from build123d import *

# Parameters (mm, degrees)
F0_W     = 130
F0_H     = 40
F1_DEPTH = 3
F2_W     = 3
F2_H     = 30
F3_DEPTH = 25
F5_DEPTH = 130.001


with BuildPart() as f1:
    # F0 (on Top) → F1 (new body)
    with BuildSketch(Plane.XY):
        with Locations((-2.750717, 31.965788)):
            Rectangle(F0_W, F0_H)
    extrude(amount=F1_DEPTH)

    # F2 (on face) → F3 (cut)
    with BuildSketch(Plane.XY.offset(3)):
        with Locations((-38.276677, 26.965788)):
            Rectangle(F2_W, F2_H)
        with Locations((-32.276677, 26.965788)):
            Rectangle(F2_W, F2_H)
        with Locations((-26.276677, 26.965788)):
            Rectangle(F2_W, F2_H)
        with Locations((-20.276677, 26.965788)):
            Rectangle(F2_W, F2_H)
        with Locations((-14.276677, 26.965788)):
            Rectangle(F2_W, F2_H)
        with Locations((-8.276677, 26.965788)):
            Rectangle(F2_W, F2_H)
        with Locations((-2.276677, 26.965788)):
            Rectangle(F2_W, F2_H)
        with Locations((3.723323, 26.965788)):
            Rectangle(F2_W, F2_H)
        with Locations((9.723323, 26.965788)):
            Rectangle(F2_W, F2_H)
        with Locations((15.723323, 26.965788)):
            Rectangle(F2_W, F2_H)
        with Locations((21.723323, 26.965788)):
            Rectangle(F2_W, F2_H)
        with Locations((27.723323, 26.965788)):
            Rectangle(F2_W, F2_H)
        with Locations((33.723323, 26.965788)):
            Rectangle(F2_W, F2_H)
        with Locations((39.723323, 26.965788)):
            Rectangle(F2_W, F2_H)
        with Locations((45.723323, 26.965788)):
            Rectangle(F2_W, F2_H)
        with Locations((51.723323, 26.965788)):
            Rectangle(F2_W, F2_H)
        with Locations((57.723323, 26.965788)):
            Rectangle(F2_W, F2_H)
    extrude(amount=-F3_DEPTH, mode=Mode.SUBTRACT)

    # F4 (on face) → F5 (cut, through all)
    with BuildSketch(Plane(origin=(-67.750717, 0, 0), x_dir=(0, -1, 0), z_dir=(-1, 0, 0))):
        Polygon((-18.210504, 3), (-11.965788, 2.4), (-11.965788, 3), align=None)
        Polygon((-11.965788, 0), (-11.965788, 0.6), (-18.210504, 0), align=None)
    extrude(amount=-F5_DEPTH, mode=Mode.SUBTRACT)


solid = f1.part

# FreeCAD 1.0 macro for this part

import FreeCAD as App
import Part
import Sketcher

V = App.Vector

doc = App.newDocument("Part")
body = doc.addObject("PartDesign::Body", "Body")

# Sketch on XY plane
sketch1 = body.newObject("Sketcher::SketchObject", "Sketch")
sketch1.AttachmentSupport = (doc.getObject("XY_Plane"), [""])
sketch1.MapMode = "FlatFace"
sketch1.addGeometry([
    Part.LineSegment(V(-68, 52, 0), V(-68, 12, 0)),
    Part.LineSegment(V(-68, 12, 0), V(62, 12, 0)),
    Part.LineSegment(V(62, 12, 0), V(62, 52, 0)),
    Part.LineSegment(V(62, 52, 0), V(-68, 52, 0)),
], False)
sketch1.addConstraint([
    Sketcher.Constraint("Coincident", 0, 2, 1, 1),
    Sketcher.Constraint("Coincident", 1, 2, 2, 1),
    Sketcher.Constraint("Coincident", 2, 2, 3, 1),
    Sketcher.Constraint("Coincident", 3, 2, 0, 1),
    Sketcher.Constraint("Vertical", 0),
    Sketcher.Constraint("Horizontal", 1),
    Sketcher.Constraint("Vertical", 2),
    Sketcher.Constraint("Horizontal", 3),
    Sketcher.Constraint("DistanceX", 1, 1, 1, 2, 130.0),
    Sketcher.Constraint("DistanceY", 0, 2, 0, 1, 40.0),
    Sketcher.Constraint("DistanceY", -1, 1, 2, 2, 51.965788),
    Sketcher.Constraint("DistanceX", 0, 2, -1, 1, 67.750717),
])
pad1 = body.newObject("PartDesign::Pad", "Pad")
pad1.Profile = sketch1
pad1.Length = 3

# Sketch on XY plane
sketch2 = body.newObject("Sketcher::SketchObject", "Sketch001")
sketch2.AttachmentSupport = (doc.getObject("XY_Plane"), [""])
sketch2.MapMode = "FlatFace"
sketch2.AttachmentOffset = App.Placement(V(0, 0, 3), App.Rotation())
sketch2.addGeometry([
    Part.LineSegment(V(-39.8, 42, 0), V(-39.8, 12, 0)),  # 0
    Part.LineSegment(V(-39.8, 12, 0), V(-36.8, 12, 0)),  # 1
    Part.LineSegment(V(-36.8, 12, 0), V(-36.8, 42, 0)),  # 2
    Part.LineSegment(V(-36.8, 42, 0), V(-39.8, 42, 0)),  # 3
    Part.LineSegment(V(-33.8, 42, 0), V(-33.8, 12, 0)),  # 4
    Part.LineSegment(V(-33.8, 12, 0), V(-30.8, 12, 0)),  # 5
    Part.LineSegment(V(-30.8, 12, 0), V(-30.8, 42, 0)),  # 6
    Part.LineSegment(V(-30.8, 42, 0), V(-33.8, 42, 0)),  # 7
    Part.LineSegment(V(-27.8, 42, 0), V(-27.8, 12, 0)),  # 8
    Part.LineSegment(V(-27.8, 12, 0), V(-24.8, 12, 0)),  # 9
    Part.LineSegment(V(-24.8, 12, 0), V(-24.8, 42, 0)),  # 10
    Part.LineSegment(V(-24.8, 42, 0), V(-27.8, 42, 0)),  # 11
    Part.LineSegment(V(-21.8, 42, 0), V(-21.8, 12, 0)),  # 12
    Part.LineSegment(V(-21.8, 12, 0), V(-18.8, 12, 0)),  # 13
    Part.LineSegment(V(-18.8, 12, 0), V(-18.8, 42, 0)),  # 14
    Part.LineSegment(V(-18.8, 42, 0), V(-21.8, 42, 0)),  # 15
    Part.LineSegment(V(-15.8, 42, 0), V(-15.8, 12, 0)),  # 16
    Part.LineSegment(V(-15.8, 12, 0), V(-12.8, 12, 0)),  # 17
    Part.LineSegment(V(-12.8, 12, 0), V(-12.8, 42, 0)),  # 18
    Part.LineSegment(V(-12.8, 42, 0), V(-15.8, 42, 0)),  # 19
    Part.LineSegment(V(-9.8, 42, 0), V(-9.8, 12, 0)),  # 20
    Part.LineSegment(V(-9.8, 12, 0), V(-6.8, 12, 0)),  # 21
    Part.LineSegment(V(-6.8, 12, 0), V(-6.8, 42, 0)),  # 22
    Part.LineSegment(V(-6.8, 42, 0), V(-9.8, 42, 0)),  # 23
    Part.LineSegment(V(-3.8, 42, 0), V(-3.8, 12, 0)),  # 24
    Part.LineSegment(V(-3.8, 12, 0), V(-0.8, 12, 0)),  # 25
    Part.LineSegment(V(-0.8, 12, 0), V(-0.8, 42, 0)),  # 26
    Part.LineSegment(V(-0.8, 42, 0), V(-3.8, 42, 0)),  # 27
    Part.LineSegment(V(2.2, 42, 0), V(2.2, 12, 0)),  # 28
    Part.LineSegment(V(2.2, 12, 0), V(5.2, 12, 0)),  # 29
    Part.LineSegment(V(5.2, 12, 0), V(5.2, 42, 0)),  # 30
    Part.LineSegment(V(5.2, 42, 0), V(2.2, 42, 0)),  # 31
    Part.LineSegment(V(8.2, 42, 0), V(8.2, 12, 0)),  # 32
    Part.LineSegment(V(8.2, 12, 0), V(11.2, 12, 0)),  # 33
    Part.LineSegment(V(11.2, 12, 0), V(11.2, 42, 0)),  # 34
    Part.LineSegment(V(11.2, 42, 0), V(8.2, 42, 0)),  # 35
    Part.LineSegment(V(14.2, 42, 0), V(14.2, 12, 0)),  # 36
    Part.LineSegment(V(14.2, 12, 0), V(17.2, 12, 0)),  # 37
    Part.LineSegment(V(17.2, 12, 0), V(17.2, 42, 0)),  # 38
    Part.LineSegment(V(17.2, 42, 0), V(14.2, 42, 0)),  # 39
    Part.LineSegment(V(20.2, 42, 0), V(20.2, 12, 0)),  # 40
    Part.LineSegment(V(20.2, 12, 0), V(23.2, 12, 0)),  # 41
    Part.LineSegment(V(23.2, 12, 0), V(23.2, 42, 0)),  # 42
    Part.LineSegment(V(23.2, 42, 0), V(20.2, 42, 0)),  # 43
    Part.LineSegment(V(26.2, 42, 0), V(26.2, 12, 0)),  # 44
    Part.LineSegment(V(26.2, 12, 0), V(29.2, 12, 0)),  # 45
    Part.LineSegment(V(29.2, 12, 0), V(29.2, 42, 0)),  # 46
    Part.LineSegment(V(29.2, 42, 0), V(26.2, 42, 0)),  # 47
    Part.LineSegment(V(32.2, 42, 0), V(32.2, 12, 0)),  # 48
    Part.LineSegment(V(32.2, 12, 0), V(35.2, 12, 0)),  # 49
    Part.LineSegment(V(35.2, 12, 0), V(35.2, 42, 0)),  # 50
    Part.LineSegment(V(35.2, 42, 0), V(32.2, 42, 0)),  # 51
    Part.LineSegment(V(38.2, 42, 0), V(38.2, 12, 0)),  # 52
    Part.LineSegment(V(38.2, 12, 0), V(41.2, 12, 0)),  # 53
    Part.LineSegment(V(41.2, 12, 0), V(41.2, 42, 0)),  # 54
    Part.LineSegment(V(41.2, 42, 0), V(38.2, 42, 0)),  # 55
    Part.LineSegment(V(44.2, 42, 0), V(44.2, 12, 0)),  # 56
    Part.LineSegment(V(44.2, 12, 0), V(47.2, 12, 0)),  # 57
    Part.LineSegment(V(47.2, 12, 0), V(47.2, 42, 0)),  # 58
    Part.LineSegment(V(47.2, 42, 0), V(44.2, 42, 0)),  # 59
    Part.LineSegment(V(50.2, 42, 0), V(50.2, 12, 0)),  # 60
    Part.LineSegment(V(50.2, 12, 0), V(53.2, 12, 0)),  # 61
    Part.LineSegment(V(53.2, 12, 0), V(53.2, 42, 0)),  # 62
    Part.LineSegment(V(53.2, 42, 0), V(50.2, 42, 0)),  # 63
    Part.LineSegment(V(56.2, 42, 0), V(56.2, 12, 0)),  # 64
    Part.LineSegment(V(56.2, 12, 0), V(59.2, 12, 0)),  # 65
    Part.LineSegment(V(59.2, 12, 0), V(59.2, 42, 0)),  # 66
    Part.LineSegment(V(59.2, 42, 0), V(56.2, 42, 0)),  # 67
], False)
sketch2.addConstraint([
    Sketcher.Constraint("Coincident", 0, 2, 1, 1),
    Sketcher.Constraint("Coincident", 1, 2, 2, 1),
    Sketcher.Constraint("Coincident", 2, 2, 3, 1),
    Sketcher.Constraint("Coincident", 3, 2, 0, 1),
    Sketcher.Constraint("Coincident", 4, 2, 5, 1),
    Sketcher.Constraint("Coincident", 5, 2, 6, 1),
    Sketcher.Constraint("Coincident", 6, 2, 7, 1),
    Sketcher.Constraint("Coincident", 7, 2, 4, 1),
    Sketcher.Constraint("Coincident", 8, 2, 9, 1),
    Sketcher.Constraint("Coincident", 9, 2, 10, 1),
    Sketcher.Constraint("Coincident", 10, 2, 11, 1),
    Sketcher.Constraint("Coincident", 11, 2, 8, 1),
    Sketcher.Constraint("Coincident", 12, 2, 13, 1),
    Sketcher.Constraint("Coincident", 13, 2, 14, 1),
    Sketcher.Constraint("Coincident", 14, 2, 15, 1),
    Sketcher.Constraint("Coincident", 15, 2, 12, 1),
    Sketcher.Constraint("Coincident", 16, 2, 17, 1),
    Sketcher.Constraint("Coincident", 17, 2, 18, 1),
    Sketcher.Constraint("Coincident", 18, 2, 19, 1),
    Sketcher.Constraint("Coincident", 19, 2, 16, 1),
    Sketcher.Constraint("Coincident", 20, 2, 21, 1),
    Sketcher.Constraint("Coincident", 21, 2, 22, 1),
    Sketcher.Constraint("Coincident", 22, 2, 23, 1),
    Sketcher.Constraint("Coincident", 23, 2, 20, 1),
    Sketcher.Constraint("Coincident", 24, 2, 25, 1),
    Sketcher.Constraint("Coincident", 25, 2, 26, 1),
    Sketcher.Constraint("Coincident", 26, 2, 27, 1),
    Sketcher.Constraint("Coincident", 27, 2, 24, 1),
    Sketcher.Constraint("Coincident", 28, 2, 29, 1),
    Sketcher.Constraint("Coincident", 29, 2, 30, 1),
    Sketcher.Constraint("Coincident", 30, 2, 31, 1),
    Sketcher.Constraint("Coincident", 31, 2, 28, 1),
    Sketcher.Constraint("Coincident", 32, 2, 33, 1),
    Sketcher.Constraint("Coincident", 33, 2, 34, 1),
    Sketcher.Constraint("Coincident", 34, 2, 35, 1),
    Sketcher.Constraint("Coincident", 35, 2, 32, 1),
    Sketcher.Constraint("Coincident", 36, 2, 37, 1),
    Sketcher.Constraint("Coincident", 37, 2, 38, 1),
    Sketcher.Constraint("Coincident", 38, 2, 39, 1),
    Sketcher.Constraint("Coincident", 39, 2, 36, 1),
    Sketcher.Constraint("Coincident", 40, 2, 41, 1),
    Sketcher.Constraint("Coincident", 41, 2, 42, 1),
    Sketcher.Constraint("Coincident", 42, 2, 43, 1),
    Sketcher.Constraint("Coincident", 43, 2, 40, 1),
    Sketcher.Constraint("Coincident", 44, 2, 45, 1),
    Sketcher.Constraint("Coincident", 45, 2, 46, 1),
    Sketcher.Constraint("Coincident", 46, 2, 47, 1),
    Sketcher.Constraint("Coincident", 47, 2, 44, 1),
    Sketcher.Constraint("Coincident", 48, 2, 49, 1),
    Sketcher.Constraint("Coincident", 49, 2, 50, 1),
    Sketcher.Constraint("Coincident", 50, 2, 51, 1),
    Sketcher.Constraint("Coincident", 51, 2, 48, 1),
    Sketcher.Constraint("Coincident", 52, 2, 53, 1),
    Sketcher.Constraint("Coincident", 53, 2, 54, 1),
    Sketcher.Constraint("Coincident", 54, 2, 55, 1),
    Sketcher.Constraint("Coincident", 55, 2, 52, 1),
    Sketcher.Constraint("Coincident", 56, 2, 57, 1),
    Sketcher.Constraint("Coincident", 57, 2, 58, 1),
    Sketcher.Constraint("Coincident", 58, 2, 59, 1),
    Sketcher.Constraint("Coincident", 59, 2, 56, 1),
    Sketcher.Constraint("Coincident", 60, 2, 61, 1),
    Sketcher.Constraint("Coincident", 61, 2, 62, 1),
    Sketcher.Constraint("Coincident", 62, 2, 63, 1),
    Sketcher.Constraint("Coincident", 63, 2, 60, 1),
    Sketcher.Constraint("Coincident", 64, 2, 65, 1),
    Sketcher.Constraint("Coincident", 65, 2, 66, 1),
    Sketcher.Constraint("Coincident", 66, 2, 67, 1),
    Sketcher.Constraint("Coincident", 67, 2, 64, 1),
    Sketcher.Constraint("Vertical", 0),
    Sketcher.Constraint("Horizontal", 1),
    Sketcher.Constraint("Vertical", 2),
    Sketcher.Constraint("Horizontal", 3),
    Sketcher.Constraint("Vertical", 4),
    Sketcher.Constraint("Horizontal", 5),
    Sketcher.Constraint("Vertical", 6),
    Sketcher.Constraint("Horizontal", 7),
    Sketcher.Constraint("Vertical", 8),
    Sketcher.Constraint("Horizontal", 9),
    Sketcher.Constraint("Vertical", 10),
    Sketcher.Constraint("Horizontal", 11),
    Sketcher.Constraint("Vertical", 12),
    Sketcher.Constraint("Horizontal", 13),
    Sketcher.Constraint("Vertical", 14),
    Sketcher.Constraint("Horizontal", 15),
    Sketcher.Constraint("Vertical", 16),
    Sketcher.Constraint("Horizontal", 17),
    Sketcher.Constraint("Vertical", 18),
    Sketcher.Constraint("Horizontal", 19),
    Sketcher.Constraint("Vertical", 20),
    Sketcher.Constraint("Horizontal", 21),
    Sketcher.Constraint("Vertical", 22),
    Sketcher.Constraint("Horizontal", 23),
    Sketcher.Constraint("Vertical", 24),
    Sketcher.Constraint("Horizontal", 25),
    Sketcher.Constraint("Vertical", 26),
    Sketcher.Constraint("Horizontal", 27),
    Sketcher.Constraint("Vertical", 28),
    Sketcher.Constraint("Horizontal", 29),
    Sketcher.Constraint("Vertical", 30),
    Sketcher.Constraint("Horizontal", 31),
    Sketcher.Constraint("Vertical", 32),
    Sketcher.Constraint("Horizontal", 33),
    Sketcher.Constraint("Vertical", 34),
    Sketcher.Constraint("Horizontal", 35),
    Sketcher.Constraint("Vertical", 36),
    Sketcher.Constraint("Horizontal", 37),
    Sketcher.Constraint("Vertical", 38),
    Sketcher.Constraint("Horizontal", 39),
    Sketcher.Constraint("Vertical", 40),
    Sketcher.Constraint("Horizontal", 41),
    Sketcher.Constraint("Vertical", 42),
    Sketcher.Constraint("Horizontal", 43),
    Sketcher.Constraint("Vertical", 44),
    Sketcher.Constraint("Horizontal", 45),
    Sketcher.Constraint("Vertical", 46),
    Sketcher.Constraint("Horizontal", 47),
    Sketcher.Constraint("Vertical", 48),
    Sketcher.Constraint("Horizontal", 49),
    Sketcher.Constraint("Vertical", 50),
    Sketcher.Constraint("Horizontal", 51),
    Sketcher.Constraint("Vertical", 52),
    Sketcher.Constraint("Horizontal", 53),
    Sketcher.Constraint("Vertical", 54),
    Sketcher.Constraint("Horizontal", 55),
    Sketcher.Constraint("Vertical", 56),
    Sketcher.Constraint("Horizontal", 57),
    Sketcher.Constraint("Vertical", 58),
    Sketcher.Constraint("Horizontal", 59),
    Sketcher.Constraint("Vertical", 60),
    Sketcher.Constraint("Horizontal", 61),
    Sketcher.Constraint("Vertical", 62),
    Sketcher.Constraint("Horizontal", 63),
    Sketcher.Constraint("Vertical", 64),
    Sketcher.Constraint("Horizontal", 65),
    Sketcher.Constraint("Vertical", 66),
    Sketcher.Constraint("Horizontal", 67),
    Sketcher.Constraint("Horizontal", 1, 2, 4, 2),
    Sketcher.Constraint("Horizontal", 3, 2, 6, 2),
    Sketcher.Constraint("Horizontal", 5, 2, 8, 2),
    Sketcher.Constraint("Horizontal", 7, 2, 10, 2),
    Sketcher.Constraint("Horizontal", 9, 2, 12, 2),
    Sketcher.Constraint("Horizontal", 11, 2, 14, 2),
    Sketcher.Constraint("Horizontal", 13, 2, 16, 2),
    Sketcher.Constraint("Horizontal", 15, 2, 18, 2),
    Sketcher.Constraint("Horizontal", 17, 2, 20, 2),
    Sketcher.Constraint("Horizontal", 19, 2, 22, 2),
    Sketcher.Constraint("Horizontal", 21, 2, 24, 2),
    Sketcher.Constraint("Horizontal", 23, 2, 26, 2),
    Sketcher.Constraint("Horizontal", 25, 2, 28, 2),
    Sketcher.Constraint("Horizontal", 27, 2, 30, 2),
    Sketcher.Constraint("Horizontal", 29, 2, 32, 2),
    Sketcher.Constraint("Horizontal", 31, 2, 34, 2),
    Sketcher.Constraint("Horizontal", 33, 2, 36, 2),
    Sketcher.Constraint("Horizontal", 35, 2, 38, 2),
    Sketcher.Constraint("Horizontal", 37, 2, 40, 2),
    Sketcher.Constraint("Horizontal", 39, 2, 42, 2),
    Sketcher.Constraint("Horizontal", 41, 2, 44, 2),
    Sketcher.Constraint("Horizontal", 43, 2, 46, 2),
    Sketcher.Constraint("Horizontal", 45, 2, 48, 2),
    Sketcher.Constraint("Horizontal", 47, 2, 50, 2),
    Sketcher.Constraint("Horizontal", 49, 2, 52, 2),
    Sketcher.Constraint("Horizontal", 51, 2, 54, 2),
    Sketcher.Constraint("Horizontal", 53, 2, 56, 2),
    Sketcher.Constraint("Horizontal", 55, 2, 58, 2),
    Sketcher.Constraint("Horizontal", 57, 2, 60, 2),
    Sketcher.Constraint("Horizontal", 59, 2, 62, 2),
    Sketcher.Constraint("Horizontal", 61, 2, 64, 2),
    Sketcher.Constraint("Horizontal", 63, 2, 66, 2),
    Sketcher.Constraint("Equal", 3, 5),
    Sketcher.Constraint("Equal", 7, 9),
    Sketcher.Constraint("Equal", 11, 13),
    Sketcher.Constraint("Equal", 15, 17),
    Sketcher.Constraint("Equal", 19, 21),
    Sketcher.Constraint("Equal", 23, 25),
    Sketcher.Constraint("Equal", 27, 29),
    Sketcher.Constraint("Equal", 31, 33),
    Sketcher.Constraint("Equal", 35, 37),
    Sketcher.Constraint("Equal", 39, 41),
    Sketcher.Constraint("Equal", 43, 45),
    Sketcher.Constraint("Equal", 47, 49),
    Sketcher.Constraint("Equal", 51, 53),
    Sketcher.Constraint("Equal", 55, 57),
    Sketcher.Constraint("Equal", 59, 61),
    Sketcher.Constraint("Equal", 63, 65),
    Sketcher.Constraint("DistanceX", 1, 1, 1, 2, 3.0),
    Sketcher.Constraint("DistanceY", 0, 2, 0, 1, 30.0),
    Sketcher.Constraint("DistanceY", -1, 1, 2, 2, 41.965788),
    Sketcher.Constraint("DistanceX", 0, 2, -1, 1, 39.776677),
    Sketcher.Constraint("DistanceX", 4, 2, -1, 1, 33.776677),
    Sketcher.Constraint("DistanceX", 8, 2, -1, 1, 27.776677),
    Sketcher.Constraint("DistanceX", 12, 2, -1, 1, 21.776677),
    Sketcher.Constraint("DistanceX", 16, 2, -1, 1, 15.776677),
    Sketcher.Constraint("DistanceX", 20, 2, -1, 1, 9.776677),
    Sketcher.Constraint("DistanceX", 24, 2, -1, 1, 3.776677),
    Sketcher.Constraint("DistanceX", -1, 1, 28, 2, 2.223323),
    Sketcher.Constraint("DistanceX", -1, 1, 32, 2, 8.223323),
    Sketcher.Constraint("DistanceX", -1, 1, 36, 2, 14.223323),
    Sketcher.Constraint("DistanceX", -1, 1, 40, 2, 20.223323),
    Sketcher.Constraint("DistanceX", -1, 1, 44, 2, 26.223323),
    Sketcher.Constraint("DistanceX", -1, 1, 48, 2, 32.223323),
    Sketcher.Constraint("DistanceX", -1, 1, 52, 2, 38.223323),
    Sketcher.Constraint("DistanceX", -1, 1, 56, 2, 44.223323),
    Sketcher.Constraint("DistanceX", -1, 1, 60, 2, 50.223323),
    Sketcher.Constraint("DistanceX", -1, 1, 64, 2, 56.223323),
])
pocket1 = body.newObject("PartDesign::Pocket", "Pocket")
pocket1.Profile = sketch2
pocket1.Length = 25

# Sketch on YZ plane
sketch3 = body.newObject("Sketcher::SketchObject", "Sketch002")
sketch3.AttachmentSupport = (doc.getObject("YZ_Plane"), [""])
sketch3.MapMode = "FlatFace"
sketch3.AttachmentOffset = App.Placement(V(0, 0, -67.750717), App.Rotation())
sketch3.addGeometry([
    Part.LineSegment(V(18.2, 3, 0), V(12, 2.4, 0)),  # 0
    Part.LineSegment(V(12, 2.4, 0), V(12, 3, 0)),  # 1
    Part.LineSegment(V(12, 3, 0), V(18.2, 3, 0)),  # 2
    Part.LineSegment(V(12, 0, 0), V(12, 0.6, 0)),  # 3
    Part.LineSegment(V(12, 0.6, 0), V(18.2, 0, 0)),  # 4
    Part.LineSegment(V(18.2, 0, 0), V(12, 0, 0)),  # 5
], False)
sketch3.addConstraint([
    Sketcher.Constraint("Coincident", 0, 2, 1, 1),
    Sketcher.Constraint("Coincident", 1, 2, 2, 1),
    Sketcher.Constraint("Coincident", 2, 2, 0, 1),
    Sketcher.Constraint("Coincident", 3, 2, 4, 1),
    Sketcher.Constraint("Coincident", 4, 2, 5, 1),
    Sketcher.Constraint("Coincident", 5, 2, 3, 1),
    Sketcher.Constraint("Vertical", 1),
    Sketcher.Constraint("Horizontal", 2),
    Sketcher.Constraint("Vertical", 3),
    Sketcher.Constraint("Horizontal", 5),
    Sketcher.Constraint("PointOnObject", 4, 2, -1),
    Sketcher.Constraint("Vertical", 1, 2, 3, 2),
    Sketcher.Constraint("Vertical", 2, 2, 4, 2),
    Sketcher.Constraint("Equal", 1, 3),
    Sketcher.Constraint("DistanceY", 1, 1, 1, 2, 0.6),
    Sketcher.Constraint("DistanceY", -1, 1, 1, 2, 3.0),
    Sketcher.Constraint("DistanceX", 2, 1, 2, 2, 6.244716),
    Sketcher.Constraint("DistanceX", -1, 1, 0, 2, 11.965788),
])
pocket2 = body.newObject("PartDesign::Pocket", "Pocket001")
pocket2.Profile = sketch3
pocket2.Type = "ThroughAll"
pocket2.Reversed = True

doc.recompute()
